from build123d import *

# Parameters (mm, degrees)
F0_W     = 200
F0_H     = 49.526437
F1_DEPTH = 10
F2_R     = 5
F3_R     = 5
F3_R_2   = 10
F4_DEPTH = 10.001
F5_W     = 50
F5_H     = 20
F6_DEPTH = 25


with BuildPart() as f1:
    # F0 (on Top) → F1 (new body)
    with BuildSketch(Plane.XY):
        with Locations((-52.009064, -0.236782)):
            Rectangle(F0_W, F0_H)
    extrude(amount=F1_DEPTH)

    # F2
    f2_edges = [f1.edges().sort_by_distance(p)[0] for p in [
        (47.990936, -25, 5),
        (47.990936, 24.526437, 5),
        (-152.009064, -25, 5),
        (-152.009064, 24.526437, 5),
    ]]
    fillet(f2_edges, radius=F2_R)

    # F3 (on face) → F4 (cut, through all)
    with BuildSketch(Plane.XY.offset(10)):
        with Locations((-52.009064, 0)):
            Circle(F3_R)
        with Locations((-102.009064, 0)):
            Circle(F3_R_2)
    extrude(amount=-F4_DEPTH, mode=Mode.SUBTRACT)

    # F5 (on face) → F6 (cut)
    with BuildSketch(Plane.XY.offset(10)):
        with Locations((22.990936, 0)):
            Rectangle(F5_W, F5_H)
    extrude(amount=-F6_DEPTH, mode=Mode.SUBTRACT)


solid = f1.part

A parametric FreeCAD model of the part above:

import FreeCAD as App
import Part
import Sketcher


def edges_at(feature, points):
    """Names of the edges that pass closest to the given points."""
    edges = feature.Shape.Edges
    near = lambda p: min(range(len(edges)), key=lambda i: edges[i].distToShape(Part.Vertex(*p))[0])
    return sorted({f"Edge{near(p) + 1}" for p in points})


def add_polygon(sketch, points):
    """Adds a closed chain of lines whose ends are joined by coincident constraints."""
    first, n = sketch.GeometryCount, len(points)
    for a, b in zip(points, points[1:] + points[:1]):
        sketch.addGeometry(Part.LineSegment(App.Vector(*a, 0), App.Vector(*b, 0)), False)
    for i in range(n):
        sketch.addConstraint(Sketcher.Constraint("Coincident", first + i, 2, first + (i + 1) % n, 1))

doc = App.newDocument("Part")
params = doc.addObject("Spreadsheet::Sheet", "Params")
for row, (alias, value) in enumerate([
    ("sketch1_width", "200 mm"),
    ("pad1_length", "10 mm"),
    ("fillet_radius", "5 mm"),
    ("sketch2_diameter", "10 mm"),
    ("sketch2_diameter2", "20 mm"),
    ("sketch3_width", "50 mm"),
    ("sketch3_height", "20 mm"),
    ("pocket2_length", "25 mm"),
], start=1):
    params.set(f"A{row}", alias)
    params.set(f"B{row}", "=" + value)
    params.setAlias(f"B{row}", alias)

body = doc.addObject("PartDesign::Body", "Body")

sketch1 = doc.addObject("Sketcher::SketchObject", "Sketch")
body.addObject(sketch1)
sketch1.AttachmentSupport = (doc.XY_Plane, [""])
sketch1.MapMode = "FlatFace"
add_polygon(sketch1, [(-152, 25), (-152, -25), (48, -25), (48, 25)])
sketch1.addConstraint(Sketcher.Constraint("Vertical", 0))
sketch1.addConstraint(Sketcher.Constraint("Horizontal", 1))
sketch1.addConstraint(Sketcher.Constraint("Vertical", 2))
sketch1.addConstraint(Sketcher.Constraint("Horizontal", 3))
sketch1.addConstraint(Sketcher.Constraint("DistanceX", 1, 1, 1, 2, 200.0))
sketch1.addConstraint(Sketcher.Constraint("DistanceY", 0, 2, -1, 1, 25.0))
sketch1.addConstraint(Sketcher.Constraint("DistanceY", 0, 2, 0, 1, 49.526437))
sketch1.addConstraint(Sketcher.Constraint("DistanceX", 0, 2, -1, 1, 152.009064))
sketch1.setExpression("Constraints[8]", "Params.sketch1_width")
pad1 = doc.addObject("PartDesign::Pad", "Pad")
body.addObject(pad1)
pad1.Profile = sketch1
pad1.setExpression("Length", "Params.pad1_length")
doc.recompute()

fillet = doc.addObject("PartDesign::Fillet", "Fillet")
body.addObject(fillet)
fillet.Base = (pad1, edges_at(pad1, [
    (47.991, -25, 5),
    (47.991, 24.526, 5),
    (-152.009, -25, 5),
    (-152.009, 24.526, 5),
]))
fillet.setExpression("Radius", "Params.fillet_radius")

sketch2 = doc.addObject("Sketcher::SketchObject", "Sketch001")
body.addObject(sketch2)
sketch2.AttachmentSupport = (doc.XY_Plane, [""])
sketch2.MapMode = "FlatFace"
sketch2.AttachmentOffset = App.Placement(App.Vector(0, 0, 10), App.Rotation())
sketch2.addGeometry(Part.Circle(App.Vector(-52, 0, 0), App.Vector(0, 0, 1), 5), False)
sketch2.addGeometry(Part.Circle(App.Vector(-102, 0, 0), App.Vector(0, 0, 1), 10), False)
sketch2.addConstraint(Sketcher.Constraint("PointOnObject", 0, 3, -1))
sketch2.addConstraint(Sketcher.Constraint("PointOnObject", 1, 3, -1))
sketch2.addConstraint(Sketcher.Constraint("Diameter", 0, 10.0))
sketch2.addConstraint(Sketcher.Constraint("Diameter", 1, 20.0))
sketch2.addConstraint(Sketcher.Constraint("DistanceX", 1, 3, 0, 3, 50.0))
sketch2.addConstraint(Sketcher.Constraint("DistanceX", 0, 3, -1, 1, 52.009064))
sketch2.setExpression("Constraints[2]", "Params.sketch2_diameter")
sketch2.setExpression("Constraints[3]", "Params.sketch2_diameter2")
pocket1 = doc.addObject("PartDesign::Pocket", "Pocket")
body.addObject(pocket1)
pocket1.Profile = sketch2
pocket1.Type = "ThroughAll"

sketch3 = doc.addObject("Sketcher::SketchObject", "Sketch002")
body.addObject(sketch3)
sketch3.AttachmentSupport = (doc.XY_Plane, [""])
sketch3.MapMode = "FlatFace"
sketch3.AttachmentOffset = App.Placement(App.Vector(0, 0, 10), App.Rotation())
add_polygon(sketch3, [(-2, 10), (-2, -10), (48, -10), (48, 10)])
sketch3.addConstraint(Sketcher.Constraint("Vertical", 0))
sketch3.addConstraint(Sketcher.Constraint("Horizontal", 1))
sketch3.addConstraint(Sketcher.Constraint("Vertical", 2))
sketch3.addConstraint(Sketcher.Constraint("Horizontal", 3))
sketch3.addConstraint(Sketcher.Constraint("DistanceX", 1, 1, 1, 2, 50.0))
sketch3.addConstraint(Sketcher.Constraint("DistanceY", 0, 2, 0, 1, 20.0))
sketch3.addConstraint(Sketcher.Constraint("DistanceY", 0, 2, -1, 1, 10.0))
sketch3.addConstraint(Sketcher.Constraint("DistanceX", 0, 2, -1, 1, 2.009064))
sketch3.setExpression("Constraints[8]", "Params.sketch3_width")
sketch3.setExpression("Constraints[9]", "Params.sketch3_height")
pocket2 = doc.addObject("PartDesign::Pocket", "Pocket001")
body.addObject(pocket2)
pocket2.Profile = sketch3
pocket2.setExpression("Length", "Params.pocket2_length")

doc.recompute()
